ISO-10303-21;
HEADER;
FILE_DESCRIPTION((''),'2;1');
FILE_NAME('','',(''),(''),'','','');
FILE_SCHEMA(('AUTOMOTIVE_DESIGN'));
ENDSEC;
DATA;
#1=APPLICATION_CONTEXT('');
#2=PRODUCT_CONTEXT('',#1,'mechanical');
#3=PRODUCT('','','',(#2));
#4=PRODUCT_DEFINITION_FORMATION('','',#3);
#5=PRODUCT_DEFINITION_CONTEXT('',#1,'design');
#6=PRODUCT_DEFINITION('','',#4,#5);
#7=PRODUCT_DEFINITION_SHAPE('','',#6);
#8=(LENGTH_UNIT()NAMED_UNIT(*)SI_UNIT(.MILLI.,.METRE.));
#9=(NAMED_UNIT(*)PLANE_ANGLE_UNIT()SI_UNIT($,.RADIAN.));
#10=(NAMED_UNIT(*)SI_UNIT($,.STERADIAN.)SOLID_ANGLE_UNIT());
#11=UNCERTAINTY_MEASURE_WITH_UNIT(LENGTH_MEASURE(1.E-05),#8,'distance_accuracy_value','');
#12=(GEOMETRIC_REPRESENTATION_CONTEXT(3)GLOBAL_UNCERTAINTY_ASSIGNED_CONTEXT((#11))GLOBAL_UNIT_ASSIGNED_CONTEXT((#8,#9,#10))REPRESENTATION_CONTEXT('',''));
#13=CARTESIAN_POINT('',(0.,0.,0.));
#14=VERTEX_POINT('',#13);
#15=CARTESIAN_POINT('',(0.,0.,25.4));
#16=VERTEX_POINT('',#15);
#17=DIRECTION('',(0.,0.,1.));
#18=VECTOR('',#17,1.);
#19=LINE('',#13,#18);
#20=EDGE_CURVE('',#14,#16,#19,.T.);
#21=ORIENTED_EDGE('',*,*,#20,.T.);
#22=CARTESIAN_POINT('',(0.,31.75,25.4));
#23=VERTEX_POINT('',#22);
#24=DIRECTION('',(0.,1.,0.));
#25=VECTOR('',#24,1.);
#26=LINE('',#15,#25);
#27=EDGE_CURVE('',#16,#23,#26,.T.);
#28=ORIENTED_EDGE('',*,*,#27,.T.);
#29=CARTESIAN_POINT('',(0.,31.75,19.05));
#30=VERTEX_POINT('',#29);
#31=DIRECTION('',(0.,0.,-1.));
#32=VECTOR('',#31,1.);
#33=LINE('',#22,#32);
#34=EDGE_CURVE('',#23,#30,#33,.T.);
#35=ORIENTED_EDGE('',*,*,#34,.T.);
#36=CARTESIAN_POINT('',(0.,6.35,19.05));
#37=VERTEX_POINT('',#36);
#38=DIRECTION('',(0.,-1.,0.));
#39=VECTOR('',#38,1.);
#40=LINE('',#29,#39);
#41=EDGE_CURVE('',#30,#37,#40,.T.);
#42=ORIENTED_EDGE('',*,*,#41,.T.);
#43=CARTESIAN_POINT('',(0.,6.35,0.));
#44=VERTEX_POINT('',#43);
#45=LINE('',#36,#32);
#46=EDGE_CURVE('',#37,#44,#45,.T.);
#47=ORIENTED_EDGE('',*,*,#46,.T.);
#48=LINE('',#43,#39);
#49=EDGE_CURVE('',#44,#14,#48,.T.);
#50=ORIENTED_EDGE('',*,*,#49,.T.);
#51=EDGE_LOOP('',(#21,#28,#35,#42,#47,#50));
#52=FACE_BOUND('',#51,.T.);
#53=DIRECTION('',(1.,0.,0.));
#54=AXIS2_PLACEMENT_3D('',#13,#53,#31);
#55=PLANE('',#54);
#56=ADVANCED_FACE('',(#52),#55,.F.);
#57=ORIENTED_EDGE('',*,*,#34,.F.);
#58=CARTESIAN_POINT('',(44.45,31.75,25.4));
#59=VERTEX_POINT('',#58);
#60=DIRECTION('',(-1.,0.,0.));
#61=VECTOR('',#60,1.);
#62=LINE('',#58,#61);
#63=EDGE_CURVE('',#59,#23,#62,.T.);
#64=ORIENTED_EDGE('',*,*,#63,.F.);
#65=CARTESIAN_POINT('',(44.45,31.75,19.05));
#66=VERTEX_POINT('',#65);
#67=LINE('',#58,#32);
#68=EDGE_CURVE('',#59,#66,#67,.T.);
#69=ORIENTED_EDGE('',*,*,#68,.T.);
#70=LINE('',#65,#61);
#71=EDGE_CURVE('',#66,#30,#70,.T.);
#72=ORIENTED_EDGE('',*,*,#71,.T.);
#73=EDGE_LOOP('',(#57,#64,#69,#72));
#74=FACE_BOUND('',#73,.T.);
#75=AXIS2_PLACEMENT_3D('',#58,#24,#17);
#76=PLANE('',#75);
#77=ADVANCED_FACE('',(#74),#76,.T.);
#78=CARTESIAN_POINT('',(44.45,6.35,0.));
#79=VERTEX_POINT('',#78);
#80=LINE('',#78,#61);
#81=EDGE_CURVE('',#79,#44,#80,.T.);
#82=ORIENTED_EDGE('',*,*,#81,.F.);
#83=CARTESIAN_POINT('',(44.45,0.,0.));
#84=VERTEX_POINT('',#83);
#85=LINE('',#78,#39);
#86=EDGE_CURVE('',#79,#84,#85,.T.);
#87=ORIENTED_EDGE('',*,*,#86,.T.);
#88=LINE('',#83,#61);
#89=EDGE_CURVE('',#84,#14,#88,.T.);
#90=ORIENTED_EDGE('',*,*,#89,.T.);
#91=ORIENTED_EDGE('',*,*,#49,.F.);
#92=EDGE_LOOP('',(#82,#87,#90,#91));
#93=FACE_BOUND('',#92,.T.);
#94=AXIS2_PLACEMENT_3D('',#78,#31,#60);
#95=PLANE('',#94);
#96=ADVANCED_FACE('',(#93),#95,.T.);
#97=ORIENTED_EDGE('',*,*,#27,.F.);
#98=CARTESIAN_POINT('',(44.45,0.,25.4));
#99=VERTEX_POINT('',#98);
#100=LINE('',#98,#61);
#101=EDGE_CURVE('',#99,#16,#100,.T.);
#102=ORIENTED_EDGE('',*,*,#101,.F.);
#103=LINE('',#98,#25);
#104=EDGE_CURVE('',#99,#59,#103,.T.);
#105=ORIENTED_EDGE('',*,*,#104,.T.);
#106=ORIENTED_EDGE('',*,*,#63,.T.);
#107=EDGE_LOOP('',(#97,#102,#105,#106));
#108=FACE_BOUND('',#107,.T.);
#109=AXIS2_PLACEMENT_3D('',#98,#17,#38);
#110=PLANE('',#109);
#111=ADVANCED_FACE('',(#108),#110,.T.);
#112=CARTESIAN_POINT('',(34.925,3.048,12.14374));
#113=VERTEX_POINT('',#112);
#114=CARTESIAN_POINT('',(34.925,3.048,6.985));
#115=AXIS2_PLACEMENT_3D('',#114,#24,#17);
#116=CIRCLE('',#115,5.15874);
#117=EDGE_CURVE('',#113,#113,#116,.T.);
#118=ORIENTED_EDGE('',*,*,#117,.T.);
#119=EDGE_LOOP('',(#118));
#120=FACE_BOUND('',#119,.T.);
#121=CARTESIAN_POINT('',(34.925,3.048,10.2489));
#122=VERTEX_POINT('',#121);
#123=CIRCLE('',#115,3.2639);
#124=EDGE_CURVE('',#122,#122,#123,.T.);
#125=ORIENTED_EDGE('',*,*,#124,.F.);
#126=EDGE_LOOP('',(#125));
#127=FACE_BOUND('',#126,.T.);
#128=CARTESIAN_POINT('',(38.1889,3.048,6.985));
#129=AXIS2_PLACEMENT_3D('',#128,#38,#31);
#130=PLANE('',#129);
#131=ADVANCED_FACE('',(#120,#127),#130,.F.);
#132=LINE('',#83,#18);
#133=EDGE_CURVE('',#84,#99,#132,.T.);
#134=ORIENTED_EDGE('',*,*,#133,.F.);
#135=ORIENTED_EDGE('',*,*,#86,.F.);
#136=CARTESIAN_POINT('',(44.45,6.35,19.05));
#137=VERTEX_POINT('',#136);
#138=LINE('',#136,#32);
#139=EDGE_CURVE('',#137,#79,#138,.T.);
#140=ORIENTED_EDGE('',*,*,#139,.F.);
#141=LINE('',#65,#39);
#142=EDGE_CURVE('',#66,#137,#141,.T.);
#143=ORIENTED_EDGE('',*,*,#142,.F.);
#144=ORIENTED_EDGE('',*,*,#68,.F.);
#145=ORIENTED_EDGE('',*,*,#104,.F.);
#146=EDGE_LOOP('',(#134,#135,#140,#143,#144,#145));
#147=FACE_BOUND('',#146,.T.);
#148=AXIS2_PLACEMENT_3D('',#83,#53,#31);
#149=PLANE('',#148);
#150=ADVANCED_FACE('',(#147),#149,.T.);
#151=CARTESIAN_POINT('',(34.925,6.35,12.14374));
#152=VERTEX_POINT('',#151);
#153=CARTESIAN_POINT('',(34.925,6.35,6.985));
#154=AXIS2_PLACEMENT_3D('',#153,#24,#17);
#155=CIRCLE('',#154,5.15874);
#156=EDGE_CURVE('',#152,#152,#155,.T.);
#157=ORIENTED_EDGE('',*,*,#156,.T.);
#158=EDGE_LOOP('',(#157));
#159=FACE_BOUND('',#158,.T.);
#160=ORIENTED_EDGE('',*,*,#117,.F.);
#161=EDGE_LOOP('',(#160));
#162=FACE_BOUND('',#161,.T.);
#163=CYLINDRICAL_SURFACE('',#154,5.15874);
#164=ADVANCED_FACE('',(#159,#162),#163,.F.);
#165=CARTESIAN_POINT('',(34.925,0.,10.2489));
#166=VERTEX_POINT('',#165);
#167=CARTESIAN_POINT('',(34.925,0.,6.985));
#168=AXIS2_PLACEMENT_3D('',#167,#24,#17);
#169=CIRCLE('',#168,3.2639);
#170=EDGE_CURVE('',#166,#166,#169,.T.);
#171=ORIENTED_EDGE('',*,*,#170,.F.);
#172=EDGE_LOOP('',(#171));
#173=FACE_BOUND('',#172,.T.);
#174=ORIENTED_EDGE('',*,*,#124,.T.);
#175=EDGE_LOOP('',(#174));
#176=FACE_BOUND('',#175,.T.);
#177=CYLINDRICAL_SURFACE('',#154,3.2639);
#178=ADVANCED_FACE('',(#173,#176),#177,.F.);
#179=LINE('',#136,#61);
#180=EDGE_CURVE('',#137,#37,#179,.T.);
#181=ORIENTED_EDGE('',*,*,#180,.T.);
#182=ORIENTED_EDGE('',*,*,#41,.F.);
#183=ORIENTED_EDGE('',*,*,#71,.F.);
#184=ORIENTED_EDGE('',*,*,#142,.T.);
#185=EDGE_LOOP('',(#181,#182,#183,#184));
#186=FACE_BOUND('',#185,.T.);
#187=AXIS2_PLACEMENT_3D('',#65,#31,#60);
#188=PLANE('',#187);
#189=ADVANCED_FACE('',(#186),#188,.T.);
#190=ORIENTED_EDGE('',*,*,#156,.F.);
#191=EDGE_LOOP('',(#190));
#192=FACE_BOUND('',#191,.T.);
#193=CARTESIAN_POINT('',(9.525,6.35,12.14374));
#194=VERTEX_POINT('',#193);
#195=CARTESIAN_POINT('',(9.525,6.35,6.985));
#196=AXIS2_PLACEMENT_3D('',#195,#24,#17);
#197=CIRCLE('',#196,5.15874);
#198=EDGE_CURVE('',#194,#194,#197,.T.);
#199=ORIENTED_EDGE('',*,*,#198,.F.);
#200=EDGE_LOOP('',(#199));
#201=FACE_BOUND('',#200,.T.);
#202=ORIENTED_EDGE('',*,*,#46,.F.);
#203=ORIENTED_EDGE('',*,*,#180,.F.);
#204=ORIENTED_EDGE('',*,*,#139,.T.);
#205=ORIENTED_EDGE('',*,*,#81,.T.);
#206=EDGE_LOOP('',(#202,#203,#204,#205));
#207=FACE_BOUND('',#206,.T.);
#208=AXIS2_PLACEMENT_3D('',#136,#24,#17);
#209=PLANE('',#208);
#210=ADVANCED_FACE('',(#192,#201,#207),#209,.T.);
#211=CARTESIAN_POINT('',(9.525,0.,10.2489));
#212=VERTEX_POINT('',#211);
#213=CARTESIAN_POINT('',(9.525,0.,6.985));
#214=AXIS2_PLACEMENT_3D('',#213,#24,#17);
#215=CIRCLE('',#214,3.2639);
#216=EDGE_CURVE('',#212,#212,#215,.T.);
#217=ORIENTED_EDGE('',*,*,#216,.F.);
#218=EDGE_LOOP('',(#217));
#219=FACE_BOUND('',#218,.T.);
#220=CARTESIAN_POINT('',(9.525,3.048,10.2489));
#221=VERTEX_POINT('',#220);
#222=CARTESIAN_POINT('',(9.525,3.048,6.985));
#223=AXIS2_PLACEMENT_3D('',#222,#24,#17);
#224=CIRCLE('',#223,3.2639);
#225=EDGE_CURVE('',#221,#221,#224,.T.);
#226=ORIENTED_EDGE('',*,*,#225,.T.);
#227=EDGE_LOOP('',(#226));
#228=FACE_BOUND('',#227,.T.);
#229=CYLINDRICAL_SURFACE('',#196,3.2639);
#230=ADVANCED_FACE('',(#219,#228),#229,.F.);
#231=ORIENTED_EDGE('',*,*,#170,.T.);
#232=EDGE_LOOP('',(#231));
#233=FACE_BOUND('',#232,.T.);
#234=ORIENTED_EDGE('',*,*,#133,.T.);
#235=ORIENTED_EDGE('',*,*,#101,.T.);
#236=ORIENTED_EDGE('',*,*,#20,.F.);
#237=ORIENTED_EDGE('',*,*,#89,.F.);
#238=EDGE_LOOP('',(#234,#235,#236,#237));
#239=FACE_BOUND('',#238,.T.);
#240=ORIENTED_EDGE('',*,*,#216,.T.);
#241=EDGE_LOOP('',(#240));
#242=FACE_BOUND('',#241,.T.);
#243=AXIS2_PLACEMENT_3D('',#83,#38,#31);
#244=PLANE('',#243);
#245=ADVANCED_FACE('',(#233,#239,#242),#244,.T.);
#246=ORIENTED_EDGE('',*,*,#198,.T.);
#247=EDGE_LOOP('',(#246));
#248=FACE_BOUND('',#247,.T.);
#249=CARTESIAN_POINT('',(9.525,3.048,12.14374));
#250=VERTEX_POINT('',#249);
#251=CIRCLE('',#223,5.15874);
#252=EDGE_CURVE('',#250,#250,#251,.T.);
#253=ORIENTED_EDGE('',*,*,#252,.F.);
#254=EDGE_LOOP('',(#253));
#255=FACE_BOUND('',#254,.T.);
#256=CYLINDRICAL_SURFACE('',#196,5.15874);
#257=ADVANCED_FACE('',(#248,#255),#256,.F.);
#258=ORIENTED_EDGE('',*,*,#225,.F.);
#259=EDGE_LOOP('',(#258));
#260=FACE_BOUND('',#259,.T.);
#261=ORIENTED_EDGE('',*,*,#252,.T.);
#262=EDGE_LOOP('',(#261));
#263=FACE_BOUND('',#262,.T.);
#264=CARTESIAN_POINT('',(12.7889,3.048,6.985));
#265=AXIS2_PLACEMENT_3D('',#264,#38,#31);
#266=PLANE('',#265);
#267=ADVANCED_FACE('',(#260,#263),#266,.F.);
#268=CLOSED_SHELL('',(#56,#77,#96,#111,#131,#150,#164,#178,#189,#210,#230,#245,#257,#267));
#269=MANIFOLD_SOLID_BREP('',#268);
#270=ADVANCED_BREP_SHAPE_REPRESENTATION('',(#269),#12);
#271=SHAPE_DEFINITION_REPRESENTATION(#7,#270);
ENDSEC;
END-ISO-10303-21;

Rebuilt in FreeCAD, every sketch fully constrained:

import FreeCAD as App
import Part
import Sketcher
from FreeCAD import Vector
Q = App.Units.Quantity

doc = App.newDocument("Part")
params = doc.addObject("Spreadsheet::Sheet", "Params")
for row, (alias, value) in enumerate([
    ("sketch1_width", "1 in"),
    ("sketch1_width2", "1.25 in"),
    ("pad1_length", "1.75 in"),
    ("sketch2_diameter", "0.257 in"),
    ("hole_diameter", "0.257 in"),
    ("hole_cbore_diameter", "0.4062 in"),
    ("hole_cbore_depth", "0.13 in"),
], start=1):
    params.set(f"A{row}", alias)
    params.set(f"B{row}", "=" + value)
    params.setAlias(f"B{row}", alias)

body = doc.addObject("PartDesign::Body", "Body")

sketch1 = body.newObject("Sketcher::SketchObject", "Sketch")
sketch1.AttachmentSupport = (doc.getObject("YZ_Plane"), [""])
sketch1.MapMode = "FlatFace"
sketch1.addGeometry([
    Part.LineSegment(Vector(31.75, 19.05, 0), Vector(31.75, 25.4, 0)),
    Part.LineSegment(Vector(31.75, 25.4, 0), Vector(0, 25.4, 0)),
    Part.LineSegment(Vector(0, 25.4, 0), Vector(0, 0, 0)),
    Part.LineSegment(Vector(0, 0, 0), Vector(6.35, 0, 0)),
    Part.LineSegment(Vector(6.35, 0, 0), Vector(6.35, 19.05, 0)),
    Part.LineSegment(Vector(6.35, 19.05, 0), Vector(31.75, 19.05, 0)),
], False)
sketch1.addConstraint([
    Sketcher.Constraint("Coincident", 0, 2, 1, 1),
    Sketcher.Constraint("Coincident", 1, 2, 2, 1),
    Sketcher.Constraint("Coincident", 2, 2, 3, 1),
    Sketcher.Constraint("Coincident", 3, 2, 4, 1),
    Sketcher.Constraint("Coincident", 4, 2, 5, 1),
    Sketcher.Constraint("Coincident", 5, 2, 0, 1),
    Sketcher.Constraint("Vertical", 0),
    Sketcher.Constraint("Horizontal", 1),
    Sketcher.Constraint("Vertical", 2),
    Sketcher.Constraint("Horizontal", 3),
    Sketcher.Constraint("Vertical", 4),
    Sketcher.Constraint("Horizontal", 5),
    Sketcher.Constraint("Coincident", 2, 2, -1, 1),
    Sketcher.Constraint("Equal", 3, 0),
    Sketcher.Constraint("Equal", 5, 2),
    Sketcher.Constraint("DistanceX", 5, 1, 5, 2, Q("1 in")),
    Sketcher.Constraint("DistanceX", 1, 2, 1, 1, Q("1.25 in")),
])
sketch1.setExpression("Constraints[15]", "Params.sketch1_width")
sketch1.setExpression("Constraints[16]", "Params.sketch1_width2")
pad1 = body.newObject("PartDesign::Pad", "Pad")
pad1.Profile = sketch1
pad1.setExpression("Length", "Params.pad1_length")

sketch2 = body.newObject("Sketcher::SketchObject", "Sketch001")
sketch2.AttachmentSupport = (doc.getObject("XZ_Plane"), [""])
sketch2.MapMode = "FlatFace"
sketch2.AttachmentOffset = App.Placement(Vector(0, 0, -0.25 * 25.4), App.Rotation())
sketch2.addGeometry([
    Part.Circle(Vector(9.525, 6.985, 0), Vector(0, 0, 1), 3.2639),
    Part.Circle(Vector(34.925, 6.985, 0), Vector(0, 0, 1), 3.2639),
], False)
sketch2.addConstraint([
    Sketcher.Constraint("Equal", 0, 1),
    Sketcher.Constraint("Horizontal", 0, 3, 1, 3),
    Sketcher.Constraint("Diameter", 0, Q("0.257 in")),
    Sketcher.Constraint("DistanceX", 0, 3, 1, 3, Q("1 in")),
    Sketcher.Constraint("DistanceX", -1, 1, 0, 3, Q("0.375 in")),
    Sketcher.Constraint("DistanceY", -1, 1, 0, 3, Q("0.275 in")),
])
sketch2.setExpression("Constraints[2]", "Params.sketch2_diameter")
doc.recompute()
hole = body.newObject("PartDesign::Hole", "Hole")
hole.Profile = sketch2
hole.ThreadType = "None"
hole.setExpression("Diameter", "Params.hole_diameter")
hole.DepthType = "ThroughAll"
hole.HoleCutType = "Counterbore"
hole.setExpression("HoleCutDiameter", "Params.hole_cbore_diameter")
hole.setExpression("HoleCutDepth", "Params.hole_cbore_depth")
hole.Reversed = True

doc.recompute()
